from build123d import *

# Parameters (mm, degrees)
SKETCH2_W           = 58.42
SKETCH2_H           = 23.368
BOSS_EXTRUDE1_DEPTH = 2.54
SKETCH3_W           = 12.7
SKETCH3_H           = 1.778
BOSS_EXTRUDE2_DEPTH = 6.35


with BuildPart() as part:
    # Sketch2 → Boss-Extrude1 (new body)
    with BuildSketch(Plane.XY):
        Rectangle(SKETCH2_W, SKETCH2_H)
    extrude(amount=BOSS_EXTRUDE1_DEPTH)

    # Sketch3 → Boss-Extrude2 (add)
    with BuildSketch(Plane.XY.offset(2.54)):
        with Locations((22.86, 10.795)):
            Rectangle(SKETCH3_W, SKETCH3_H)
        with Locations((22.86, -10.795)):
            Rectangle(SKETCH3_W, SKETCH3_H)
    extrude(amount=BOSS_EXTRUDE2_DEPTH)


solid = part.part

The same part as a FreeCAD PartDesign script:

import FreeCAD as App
import Part
import Sketcher

V = App.Vector
Q = App.Units.Quantity

doc = App.newDocument("Part")
body = doc.addObject("PartDesign::Body", "Body")

sketch1 = body.newObject("Sketcher::SketchObject", "Sketch")
sketch1.AttachmentSupport = (doc.getObject("XY_Plane"), [""])
sketch1.MapMode = "FlatFace"
sketch1.addGeometry([
    Part.LineSegment(V(-29, 12, 0), V(-29, -12, 0)),
    Part.LineSegment(V(-29, -12, 0), V(29, -12, 0)),
    Part.LineSegment(V(29, -12, 0), V(29, 12, 0)),
    Part.LineSegment(V(29, 12, 0), V(-29, 12, 0)),
], False)
sketch1.addConstraint([
    Sketcher.Constraint("Coincident", 0, 2, 1, 1),
    Sketcher.Constraint("Coincident", 1, 2, 2, 1),
    Sketcher.Constraint("Coincident", 2, 2, 3, 1),
    Sketcher.Constraint("Coincident", 3, 2, 0, 1),
    Sketcher.Constraint("Vertical", 0),
    Sketcher.Constraint("Horizontal", 1),
    Sketcher.Constraint("Vertical", 2),
    Sketcher.Constraint("Horizontal", 3),
    Sketcher.Constraint("Symmetric", 0, 2, 2, 2, -1, 1),
    Sketcher.Constraint("DistanceX", 1, 1, 1, 2, Q("2.3 in")),
    Sketcher.Constraint("DistanceY", 0, 2, 0, 1, Q("0.92 in")),
])
pad1 = body.newObject("PartDesign::Pad", "Pad")
pad1.Profile = sketch1
pad1.Length = Q("0.1 in")

sketch2 = body.newObject("Sketcher::SketchObject", "Sketch001")
sketch2.AttachmentSupport = (doc.getObject("XY_Plane"), [""])
sketch2.MapMode = "FlatFace"
sketch2.AttachmentOffset = App.Placement(V(0, 0, 0.1 * 25.4), App.Rotation())
sketch2.addGeometry([
    Part.LineSegment(V(16.5, 11.7, 0), V(16.5, 9.9, 0)),
    Part.LineSegment(V(16.5, 9.9, 0), V(29.2, 9.9, 0)),
    Part.LineSegment(V(29.2, 9.9, 0), V(29.2, 11.7, 0)),
    Part.LineSegment(V(29.2, 11.7, 0), V(16.5, 11.7, 0)),
    Part.LineSegment(V(16.5, -9.9, 0), V(16.5, -11.7, 0)),
    Part.LineSegment(V(16.5, -11.7, 0), V(29.2, -11.7, 0)),
    Part.LineSegment(V(29.2, -11.7, 0), V(29.2, -9.9, 0)),
    Part.LineSegment(V(29.2, -9.9, 0), V(16.5, -9.9, 0)),
], False)
sketch2.addConstraint([
    Sketcher.Constraint("Coincident", 0, 2, 1, 1),
    Sketcher.Constraint("Coincident", 1, 2, 2, 1),
    Sketcher.Constraint("Coincident", 2, 2, 3, 1),
    Sketcher.Constraint("Coincident", 3, 2, 0, 1),
    Sketcher.Constraint("Coincident", 4, 2, 5, 1),
    Sketcher.Constraint("Coincident", 5, 2, 6, 1),
    Sketcher.Constraint("Coincident", 6, 2, 7, 1),
    Sketcher.Constraint("Coincident", 7, 2, 4, 1),
    Sketcher.Constraint("Vertical", 0),
    Sketcher.Constraint("Horizontal", 1),
    Sketcher.Constraint("Vertical", 2),
    Sketcher.Constraint("Horizontal", 3),
    Sketcher.Constraint("Vertical", 4),
    Sketcher.Constraint("Horizontal", 5),
    Sketcher.Constraint("Vertical", 6),
    Sketcher.Constraint("Horizontal", 7),
    Sketcher.Constraint("Symmetric", 3, 2, 4, 2, -1),
    Sketcher.Constraint("Symmetric", 1, 2, 6, 2, -1),
    Sketcher.Constraint("DistanceX", 1, 1, 1, 2, Q("0.5 in")),
    Sketcher.Constraint("DistanceY", 0, 2, 0, 1, Q("0.07 in")),
    Sketcher.Constraint("DistanceX", -1, 1, 0, 2, Q("0.65 in")),
    Sketcher.Constraint("DistanceY", -1, 1, 0, 2, Q("0.39 in")),
])
pad2 = body.newObject("PartDesign::Pad", "Pad001")
pad2.Profile = sketch2
pad2.Length = Q("0.25 in")

doc.recompute()
